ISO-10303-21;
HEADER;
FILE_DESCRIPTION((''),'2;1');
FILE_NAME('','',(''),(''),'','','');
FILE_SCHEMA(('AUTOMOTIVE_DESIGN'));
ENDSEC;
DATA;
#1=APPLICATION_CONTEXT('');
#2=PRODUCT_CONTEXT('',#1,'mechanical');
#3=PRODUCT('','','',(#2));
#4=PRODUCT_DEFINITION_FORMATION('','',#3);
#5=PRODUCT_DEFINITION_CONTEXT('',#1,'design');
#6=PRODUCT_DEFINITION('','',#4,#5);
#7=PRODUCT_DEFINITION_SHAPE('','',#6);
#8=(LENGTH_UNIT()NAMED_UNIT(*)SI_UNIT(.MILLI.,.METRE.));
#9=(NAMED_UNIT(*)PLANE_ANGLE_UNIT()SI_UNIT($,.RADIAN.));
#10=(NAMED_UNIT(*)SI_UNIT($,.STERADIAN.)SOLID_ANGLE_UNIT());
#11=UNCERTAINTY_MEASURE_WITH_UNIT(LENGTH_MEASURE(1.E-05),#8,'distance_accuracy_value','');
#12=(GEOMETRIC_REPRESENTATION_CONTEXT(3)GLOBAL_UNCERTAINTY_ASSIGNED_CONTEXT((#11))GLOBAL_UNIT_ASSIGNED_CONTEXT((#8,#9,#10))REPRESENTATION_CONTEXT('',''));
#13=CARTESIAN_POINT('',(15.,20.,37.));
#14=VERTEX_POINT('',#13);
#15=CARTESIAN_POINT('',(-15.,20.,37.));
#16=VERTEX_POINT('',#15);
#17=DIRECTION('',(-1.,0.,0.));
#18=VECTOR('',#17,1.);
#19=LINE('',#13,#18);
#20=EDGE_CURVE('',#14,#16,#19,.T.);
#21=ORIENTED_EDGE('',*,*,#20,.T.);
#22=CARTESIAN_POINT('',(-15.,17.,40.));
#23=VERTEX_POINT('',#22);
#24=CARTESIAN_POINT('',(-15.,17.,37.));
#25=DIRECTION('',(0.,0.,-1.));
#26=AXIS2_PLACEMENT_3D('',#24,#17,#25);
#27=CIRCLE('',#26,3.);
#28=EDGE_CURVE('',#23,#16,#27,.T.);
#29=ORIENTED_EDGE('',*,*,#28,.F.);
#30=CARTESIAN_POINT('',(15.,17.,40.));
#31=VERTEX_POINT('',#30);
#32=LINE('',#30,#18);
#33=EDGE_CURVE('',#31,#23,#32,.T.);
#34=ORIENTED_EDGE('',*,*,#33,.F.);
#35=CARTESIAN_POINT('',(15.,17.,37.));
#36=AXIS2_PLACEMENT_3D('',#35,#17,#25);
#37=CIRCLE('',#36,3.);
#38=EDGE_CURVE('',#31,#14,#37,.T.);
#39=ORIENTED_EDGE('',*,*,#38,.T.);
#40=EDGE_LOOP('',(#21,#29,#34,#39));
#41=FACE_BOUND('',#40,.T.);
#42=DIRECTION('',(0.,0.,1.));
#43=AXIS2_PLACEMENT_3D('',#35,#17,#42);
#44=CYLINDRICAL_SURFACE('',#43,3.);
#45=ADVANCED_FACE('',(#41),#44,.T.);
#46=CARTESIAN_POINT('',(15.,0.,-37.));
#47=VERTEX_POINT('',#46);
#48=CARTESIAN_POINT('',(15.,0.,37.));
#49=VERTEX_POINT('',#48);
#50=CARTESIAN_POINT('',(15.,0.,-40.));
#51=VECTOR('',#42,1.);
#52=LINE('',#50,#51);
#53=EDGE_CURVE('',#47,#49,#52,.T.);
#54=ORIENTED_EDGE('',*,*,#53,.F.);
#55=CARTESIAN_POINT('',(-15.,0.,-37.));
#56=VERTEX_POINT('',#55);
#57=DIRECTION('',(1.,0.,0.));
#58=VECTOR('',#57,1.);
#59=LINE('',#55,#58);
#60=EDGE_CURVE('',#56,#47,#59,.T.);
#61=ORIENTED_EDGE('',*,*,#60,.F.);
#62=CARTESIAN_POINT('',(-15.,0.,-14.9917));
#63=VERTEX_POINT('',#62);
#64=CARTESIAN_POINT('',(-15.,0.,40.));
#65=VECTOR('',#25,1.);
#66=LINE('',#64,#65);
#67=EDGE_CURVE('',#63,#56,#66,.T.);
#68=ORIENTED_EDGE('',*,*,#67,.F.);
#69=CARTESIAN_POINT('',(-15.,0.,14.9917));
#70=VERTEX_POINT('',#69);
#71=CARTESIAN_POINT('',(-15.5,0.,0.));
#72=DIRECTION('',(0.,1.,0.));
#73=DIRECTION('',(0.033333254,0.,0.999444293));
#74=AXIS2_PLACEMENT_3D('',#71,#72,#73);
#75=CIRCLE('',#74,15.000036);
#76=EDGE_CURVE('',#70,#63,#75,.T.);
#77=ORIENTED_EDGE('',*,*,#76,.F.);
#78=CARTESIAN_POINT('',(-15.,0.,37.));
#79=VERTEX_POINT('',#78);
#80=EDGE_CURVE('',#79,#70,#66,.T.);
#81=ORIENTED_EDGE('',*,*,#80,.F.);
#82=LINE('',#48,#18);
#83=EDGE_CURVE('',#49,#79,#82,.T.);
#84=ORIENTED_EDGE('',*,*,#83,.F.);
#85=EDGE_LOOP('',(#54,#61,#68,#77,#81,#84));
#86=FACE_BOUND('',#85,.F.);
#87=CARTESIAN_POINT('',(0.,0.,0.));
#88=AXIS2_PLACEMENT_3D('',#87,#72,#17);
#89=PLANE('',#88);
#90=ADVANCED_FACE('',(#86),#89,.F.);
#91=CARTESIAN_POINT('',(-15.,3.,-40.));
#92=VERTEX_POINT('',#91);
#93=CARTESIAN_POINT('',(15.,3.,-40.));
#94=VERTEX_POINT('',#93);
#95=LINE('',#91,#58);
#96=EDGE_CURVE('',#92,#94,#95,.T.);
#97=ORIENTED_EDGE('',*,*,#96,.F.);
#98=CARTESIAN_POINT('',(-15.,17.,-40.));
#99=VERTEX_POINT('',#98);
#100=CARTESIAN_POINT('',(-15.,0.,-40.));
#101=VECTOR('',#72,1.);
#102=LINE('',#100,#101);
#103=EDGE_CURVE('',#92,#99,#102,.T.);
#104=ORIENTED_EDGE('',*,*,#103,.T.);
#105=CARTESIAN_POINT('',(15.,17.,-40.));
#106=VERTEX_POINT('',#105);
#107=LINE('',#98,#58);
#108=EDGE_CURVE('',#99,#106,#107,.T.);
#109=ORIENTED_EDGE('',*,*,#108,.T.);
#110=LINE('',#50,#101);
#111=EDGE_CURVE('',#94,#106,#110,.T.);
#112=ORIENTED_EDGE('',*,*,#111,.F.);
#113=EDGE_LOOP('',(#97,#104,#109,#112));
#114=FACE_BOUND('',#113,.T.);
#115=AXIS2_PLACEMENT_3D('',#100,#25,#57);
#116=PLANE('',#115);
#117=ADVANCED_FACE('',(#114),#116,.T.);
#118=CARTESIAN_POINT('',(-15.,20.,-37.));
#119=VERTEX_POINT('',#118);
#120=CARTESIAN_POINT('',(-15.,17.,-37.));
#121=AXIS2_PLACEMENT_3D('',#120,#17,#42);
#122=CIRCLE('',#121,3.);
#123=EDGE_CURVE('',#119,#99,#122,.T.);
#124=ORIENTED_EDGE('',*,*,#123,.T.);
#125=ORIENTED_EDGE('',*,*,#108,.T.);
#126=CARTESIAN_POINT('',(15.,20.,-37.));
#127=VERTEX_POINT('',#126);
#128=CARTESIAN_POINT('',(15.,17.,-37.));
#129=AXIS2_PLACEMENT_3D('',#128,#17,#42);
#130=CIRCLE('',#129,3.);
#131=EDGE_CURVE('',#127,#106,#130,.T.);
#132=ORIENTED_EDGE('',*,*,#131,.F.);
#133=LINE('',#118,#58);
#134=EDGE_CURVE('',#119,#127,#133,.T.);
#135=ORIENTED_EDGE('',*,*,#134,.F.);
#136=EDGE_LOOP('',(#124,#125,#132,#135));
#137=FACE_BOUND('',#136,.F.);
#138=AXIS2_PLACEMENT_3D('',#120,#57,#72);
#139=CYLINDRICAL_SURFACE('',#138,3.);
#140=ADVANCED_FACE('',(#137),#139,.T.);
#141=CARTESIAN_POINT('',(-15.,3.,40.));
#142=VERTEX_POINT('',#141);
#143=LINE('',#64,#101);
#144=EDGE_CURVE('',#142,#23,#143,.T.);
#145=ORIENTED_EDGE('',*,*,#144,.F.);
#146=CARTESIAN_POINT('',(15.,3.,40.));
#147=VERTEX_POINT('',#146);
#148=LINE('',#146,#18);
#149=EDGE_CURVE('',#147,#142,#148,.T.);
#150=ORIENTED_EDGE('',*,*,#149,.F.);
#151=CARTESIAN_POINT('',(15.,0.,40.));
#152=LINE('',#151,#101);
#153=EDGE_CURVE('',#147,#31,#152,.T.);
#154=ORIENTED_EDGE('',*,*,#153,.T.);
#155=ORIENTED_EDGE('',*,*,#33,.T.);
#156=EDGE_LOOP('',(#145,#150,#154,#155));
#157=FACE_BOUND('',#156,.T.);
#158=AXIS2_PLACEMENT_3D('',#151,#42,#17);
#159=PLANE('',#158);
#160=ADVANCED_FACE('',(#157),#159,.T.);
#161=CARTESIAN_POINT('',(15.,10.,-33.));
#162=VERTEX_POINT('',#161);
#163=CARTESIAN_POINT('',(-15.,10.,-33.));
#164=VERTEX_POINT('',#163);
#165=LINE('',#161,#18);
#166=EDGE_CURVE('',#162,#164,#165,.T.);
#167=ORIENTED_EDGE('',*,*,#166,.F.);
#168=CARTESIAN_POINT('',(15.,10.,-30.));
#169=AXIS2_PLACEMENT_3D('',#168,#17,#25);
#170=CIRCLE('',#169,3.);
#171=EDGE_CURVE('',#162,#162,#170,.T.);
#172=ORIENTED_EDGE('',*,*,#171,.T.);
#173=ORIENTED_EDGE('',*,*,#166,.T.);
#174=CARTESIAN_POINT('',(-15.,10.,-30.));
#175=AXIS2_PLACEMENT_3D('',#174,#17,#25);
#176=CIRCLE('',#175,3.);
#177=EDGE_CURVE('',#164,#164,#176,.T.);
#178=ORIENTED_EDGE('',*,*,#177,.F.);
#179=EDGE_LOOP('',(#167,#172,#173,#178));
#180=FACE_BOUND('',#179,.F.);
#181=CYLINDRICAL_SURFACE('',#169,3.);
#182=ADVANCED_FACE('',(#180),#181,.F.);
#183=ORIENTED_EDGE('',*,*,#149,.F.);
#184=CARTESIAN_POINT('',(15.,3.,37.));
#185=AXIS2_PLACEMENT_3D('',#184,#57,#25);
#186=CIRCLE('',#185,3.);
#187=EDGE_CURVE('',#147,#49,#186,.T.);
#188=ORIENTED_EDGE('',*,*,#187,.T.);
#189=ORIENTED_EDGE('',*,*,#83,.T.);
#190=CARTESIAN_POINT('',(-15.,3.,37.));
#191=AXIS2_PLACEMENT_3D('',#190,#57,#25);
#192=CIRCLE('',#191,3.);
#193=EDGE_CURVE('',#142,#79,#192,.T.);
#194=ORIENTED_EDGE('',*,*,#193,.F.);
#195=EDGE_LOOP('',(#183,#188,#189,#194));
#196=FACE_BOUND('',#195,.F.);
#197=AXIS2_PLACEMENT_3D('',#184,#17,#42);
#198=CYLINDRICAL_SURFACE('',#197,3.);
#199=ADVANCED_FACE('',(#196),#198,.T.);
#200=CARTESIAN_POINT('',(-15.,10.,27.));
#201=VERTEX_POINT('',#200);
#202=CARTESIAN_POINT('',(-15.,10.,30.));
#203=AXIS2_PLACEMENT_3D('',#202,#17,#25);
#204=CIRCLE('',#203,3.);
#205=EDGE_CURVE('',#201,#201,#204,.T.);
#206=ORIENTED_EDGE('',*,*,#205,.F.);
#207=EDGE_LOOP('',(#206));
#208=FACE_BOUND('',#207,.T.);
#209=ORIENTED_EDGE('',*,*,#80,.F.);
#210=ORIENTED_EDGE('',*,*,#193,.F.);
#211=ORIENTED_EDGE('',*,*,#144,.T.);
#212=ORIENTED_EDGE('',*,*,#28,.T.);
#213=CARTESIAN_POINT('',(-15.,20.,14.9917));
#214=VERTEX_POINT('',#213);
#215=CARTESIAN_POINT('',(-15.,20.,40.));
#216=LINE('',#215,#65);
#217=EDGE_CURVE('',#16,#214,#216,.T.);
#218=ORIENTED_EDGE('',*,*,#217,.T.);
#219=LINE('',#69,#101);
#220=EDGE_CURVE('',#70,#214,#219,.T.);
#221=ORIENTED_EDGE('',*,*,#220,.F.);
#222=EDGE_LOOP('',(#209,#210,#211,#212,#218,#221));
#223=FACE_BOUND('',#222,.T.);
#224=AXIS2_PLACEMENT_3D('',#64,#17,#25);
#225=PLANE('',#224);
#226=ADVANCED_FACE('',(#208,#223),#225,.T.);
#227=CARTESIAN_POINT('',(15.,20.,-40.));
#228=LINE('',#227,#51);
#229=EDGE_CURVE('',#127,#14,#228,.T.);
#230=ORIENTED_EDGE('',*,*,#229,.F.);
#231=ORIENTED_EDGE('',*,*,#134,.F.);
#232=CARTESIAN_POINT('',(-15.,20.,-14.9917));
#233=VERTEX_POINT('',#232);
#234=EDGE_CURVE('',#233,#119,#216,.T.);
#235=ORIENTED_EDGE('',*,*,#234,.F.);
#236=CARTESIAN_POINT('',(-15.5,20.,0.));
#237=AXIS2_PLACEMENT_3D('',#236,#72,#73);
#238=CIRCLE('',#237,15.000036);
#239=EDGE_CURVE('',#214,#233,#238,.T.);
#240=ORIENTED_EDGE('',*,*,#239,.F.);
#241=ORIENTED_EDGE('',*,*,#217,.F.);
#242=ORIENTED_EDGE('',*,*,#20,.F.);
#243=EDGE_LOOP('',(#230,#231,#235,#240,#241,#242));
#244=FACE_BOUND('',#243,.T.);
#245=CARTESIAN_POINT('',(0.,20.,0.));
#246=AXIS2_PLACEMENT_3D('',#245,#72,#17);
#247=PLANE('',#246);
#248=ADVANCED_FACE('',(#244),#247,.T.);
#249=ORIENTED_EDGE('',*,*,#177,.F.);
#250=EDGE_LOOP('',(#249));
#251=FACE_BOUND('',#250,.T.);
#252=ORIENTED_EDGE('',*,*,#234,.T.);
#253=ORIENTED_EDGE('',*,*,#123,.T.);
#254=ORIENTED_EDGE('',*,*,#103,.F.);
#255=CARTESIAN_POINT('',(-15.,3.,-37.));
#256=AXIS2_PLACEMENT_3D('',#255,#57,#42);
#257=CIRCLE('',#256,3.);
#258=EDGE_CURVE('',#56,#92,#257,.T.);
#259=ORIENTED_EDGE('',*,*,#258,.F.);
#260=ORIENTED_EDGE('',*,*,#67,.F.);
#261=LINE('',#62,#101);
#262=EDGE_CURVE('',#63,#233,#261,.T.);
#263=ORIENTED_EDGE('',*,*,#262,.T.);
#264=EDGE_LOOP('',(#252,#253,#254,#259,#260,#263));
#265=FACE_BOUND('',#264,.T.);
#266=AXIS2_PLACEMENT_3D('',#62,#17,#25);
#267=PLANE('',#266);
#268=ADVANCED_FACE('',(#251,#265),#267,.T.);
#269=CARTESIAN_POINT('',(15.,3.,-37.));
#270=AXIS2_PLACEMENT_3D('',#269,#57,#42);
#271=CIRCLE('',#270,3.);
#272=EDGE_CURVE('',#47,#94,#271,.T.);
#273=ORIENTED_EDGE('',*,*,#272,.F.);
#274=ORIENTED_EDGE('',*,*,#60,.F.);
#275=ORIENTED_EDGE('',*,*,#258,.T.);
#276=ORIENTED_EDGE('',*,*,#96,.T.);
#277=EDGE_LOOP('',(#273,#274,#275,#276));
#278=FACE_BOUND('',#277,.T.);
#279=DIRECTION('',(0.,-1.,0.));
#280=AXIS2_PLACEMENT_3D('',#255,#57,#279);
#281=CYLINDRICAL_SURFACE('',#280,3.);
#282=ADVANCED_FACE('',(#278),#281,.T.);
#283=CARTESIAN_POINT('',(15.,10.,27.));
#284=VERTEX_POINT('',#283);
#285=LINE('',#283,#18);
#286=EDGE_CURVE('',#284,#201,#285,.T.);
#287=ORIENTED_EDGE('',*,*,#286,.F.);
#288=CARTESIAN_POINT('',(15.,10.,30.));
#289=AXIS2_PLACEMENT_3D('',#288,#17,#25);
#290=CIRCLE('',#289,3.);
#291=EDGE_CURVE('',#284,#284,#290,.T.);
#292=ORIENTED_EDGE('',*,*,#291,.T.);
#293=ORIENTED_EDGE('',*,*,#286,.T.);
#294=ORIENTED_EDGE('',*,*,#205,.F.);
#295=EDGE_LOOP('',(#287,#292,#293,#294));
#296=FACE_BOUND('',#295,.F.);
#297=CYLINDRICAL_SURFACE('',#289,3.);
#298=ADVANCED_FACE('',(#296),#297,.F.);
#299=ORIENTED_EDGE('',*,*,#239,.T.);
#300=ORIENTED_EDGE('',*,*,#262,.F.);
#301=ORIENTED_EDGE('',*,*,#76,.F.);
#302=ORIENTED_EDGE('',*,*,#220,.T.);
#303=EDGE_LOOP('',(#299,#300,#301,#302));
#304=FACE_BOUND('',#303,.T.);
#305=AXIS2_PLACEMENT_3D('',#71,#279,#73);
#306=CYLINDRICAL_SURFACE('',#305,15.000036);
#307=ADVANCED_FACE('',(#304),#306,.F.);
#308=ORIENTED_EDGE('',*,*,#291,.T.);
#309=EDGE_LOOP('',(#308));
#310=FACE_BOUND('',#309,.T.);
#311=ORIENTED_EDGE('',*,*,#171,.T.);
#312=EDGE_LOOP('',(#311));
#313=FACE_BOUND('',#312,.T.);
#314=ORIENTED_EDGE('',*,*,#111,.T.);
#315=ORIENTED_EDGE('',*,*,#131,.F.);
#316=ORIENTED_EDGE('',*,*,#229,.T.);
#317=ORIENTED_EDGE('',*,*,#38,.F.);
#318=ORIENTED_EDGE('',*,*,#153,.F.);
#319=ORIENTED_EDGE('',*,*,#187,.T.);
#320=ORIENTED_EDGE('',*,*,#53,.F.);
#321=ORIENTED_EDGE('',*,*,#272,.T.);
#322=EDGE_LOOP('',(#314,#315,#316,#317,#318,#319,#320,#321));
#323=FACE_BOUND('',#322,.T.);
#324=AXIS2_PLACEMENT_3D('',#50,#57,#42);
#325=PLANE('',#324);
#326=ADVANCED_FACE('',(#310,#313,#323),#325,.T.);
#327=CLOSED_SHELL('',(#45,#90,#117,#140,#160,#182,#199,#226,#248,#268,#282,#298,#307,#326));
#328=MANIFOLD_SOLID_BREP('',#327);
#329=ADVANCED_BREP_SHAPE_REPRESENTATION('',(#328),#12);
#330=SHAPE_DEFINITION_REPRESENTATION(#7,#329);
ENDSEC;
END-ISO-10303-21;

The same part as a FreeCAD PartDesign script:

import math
import FreeCAD as App
import Part
import Sketcher
from FreeCAD import Vector


def edges_at(feature, points):
    """Names of the edges that pass closest to the given points."""
    edges = feature.Shape.Edges
    near = lambda p: min(range(len(edges)), key=lambda i: edges[i].distToShape(Part.Vertex(*p))[0])
    return sorted({f"Edge{near(p) + 1}" for p in points})

doc = App.newDocument("Part")
body = doc.addObject("PartDesign::Body", "Body")

# Sketch on XZ plane
sketch1 = doc.addObject("Sketcher::SketchObject", "Sketch")
body.addObject(sketch1)
sketch1.AttachmentSupport = (doc.XZ_Plane, [""])
sketch1.MapMode = "FlatFace"
sketch1.addGeometry([
    Part.LineSegment(Vector(-15, 40, 0), Vector(15, 40, 0)),  # 0
    Part.LineSegment(Vector(15, 40, 0), Vector(15, -40, 0)),  # 1
    Part.LineSegment(Vector(15, -40, 0), Vector(-15, -40, 0)),  # 2
    Part.LineSegment(Vector(-15, -40, 0), Vector(-15, -15, 0)),  # 3
    Part.ArcOfCircle(Part.Circle(Vector(-16, 0, 0), Vector(0, 0, 1), 15), math.radians(-88), math.radians(88)),  # 4
    Part.LineSegment(Vector(-15, 15, 0), Vector(-15, 40, 0)),  # 5
], False)
sketch1.addConstraint([
    Sketcher.Constraint("Coincident", 0, 2, 1, 1),
    Sketcher.Constraint("Coincident", 1, 2, 2, 1),
    Sketcher.Constraint("Coincident", 2, 2, 3, 1),
    Sketcher.Constraint("Coincident", 3, 2, 4, 1),
    Sketcher.Constraint("Coincident", 4, 2, 5, 1),
    Sketcher.Constraint("Coincident", 5, 2, 0, 1),
    Sketcher.Constraint("Horizontal", 0),
    Sketcher.Constraint("Vertical", 1),
    Sketcher.Constraint("Horizontal", 2),
    Sketcher.Constraint("Vertical", 3),
    Sketcher.Constraint("Vertical", 5),
    Sketcher.Constraint("Symmetric", 0, 2, 2, 2, -1, 1),
    Sketcher.Constraint("Symmetric", 3, 2, 4, 2, -1),
    Sketcher.Constraint("Radius", 4, 15.0),
    Sketcher.Constraint("DistanceX", 0, 1, 0, 2, 30.0),
    Sketcher.Constraint("DistanceY", 1, 2, 1, 1, 80.0),
    Sketcher.Constraint("DistanceX", 4, 3, 2, 2, 0.5),
])
pad1 = doc.addObject("PartDesign::Pad", "Pad")
body.addObject(pad1)
pad1.Profile = sketch1
pad1.Length = 20
pad1.Reversed = True

# Sketch on YZ plane
sketch2 = doc.addObject("Sketcher::SketchObject", "Sketch001")
body.addObject(sketch2)
sketch2.AttachmentSupport = (doc.YZ_Plane, [""])
sketch2.MapMode = "FlatFace"
sketch2.AttachmentOffset = App.Placement(Vector(0, 0, 15), App.Rotation())
sketch2.addGeometry([
    Part.Circle(Vector(10, 30, 0), Vector(0, 0, 1), 3),
    Part.Circle(Vector(10, -30, 0), Vector(0, 0, 1), 3),
], False)
sketch2.addConstraint([
    Sketcher.Constraint("Equal", 0, 1),
    Sketcher.Constraint("Symmetric", 0, 3, 1, 3, -1),
    Sketcher.Constraint("Diameter", 0, 6.0),
    Sketcher.Constraint("DistanceX", -1, 1, 0, 3, 10.0),
    Sketcher.Constraint("DistanceY", -1, 1, 0, 3, 30.0),
])
doc.recompute()
hole = doc.addObject("PartDesign::Hole", "Hole")
body.addObject(hole)
hole.Profile = sketch2
hole.ThreadType = "None"
hole.Diameter = 6
hole.DepthType = "ThroughAll"
doc.recompute()

fillet = doc.addObject("PartDesign::Fillet", "Fillet")
body.addObject(fillet)
fillet.Base = (hole, edges_at(hole, [
    (0, 20, -40),
    (0, 20, 40),
    (0, 0, 40),
    (0, 0, -40),
]))
fillet.Radius = 3

doc.recompute()
